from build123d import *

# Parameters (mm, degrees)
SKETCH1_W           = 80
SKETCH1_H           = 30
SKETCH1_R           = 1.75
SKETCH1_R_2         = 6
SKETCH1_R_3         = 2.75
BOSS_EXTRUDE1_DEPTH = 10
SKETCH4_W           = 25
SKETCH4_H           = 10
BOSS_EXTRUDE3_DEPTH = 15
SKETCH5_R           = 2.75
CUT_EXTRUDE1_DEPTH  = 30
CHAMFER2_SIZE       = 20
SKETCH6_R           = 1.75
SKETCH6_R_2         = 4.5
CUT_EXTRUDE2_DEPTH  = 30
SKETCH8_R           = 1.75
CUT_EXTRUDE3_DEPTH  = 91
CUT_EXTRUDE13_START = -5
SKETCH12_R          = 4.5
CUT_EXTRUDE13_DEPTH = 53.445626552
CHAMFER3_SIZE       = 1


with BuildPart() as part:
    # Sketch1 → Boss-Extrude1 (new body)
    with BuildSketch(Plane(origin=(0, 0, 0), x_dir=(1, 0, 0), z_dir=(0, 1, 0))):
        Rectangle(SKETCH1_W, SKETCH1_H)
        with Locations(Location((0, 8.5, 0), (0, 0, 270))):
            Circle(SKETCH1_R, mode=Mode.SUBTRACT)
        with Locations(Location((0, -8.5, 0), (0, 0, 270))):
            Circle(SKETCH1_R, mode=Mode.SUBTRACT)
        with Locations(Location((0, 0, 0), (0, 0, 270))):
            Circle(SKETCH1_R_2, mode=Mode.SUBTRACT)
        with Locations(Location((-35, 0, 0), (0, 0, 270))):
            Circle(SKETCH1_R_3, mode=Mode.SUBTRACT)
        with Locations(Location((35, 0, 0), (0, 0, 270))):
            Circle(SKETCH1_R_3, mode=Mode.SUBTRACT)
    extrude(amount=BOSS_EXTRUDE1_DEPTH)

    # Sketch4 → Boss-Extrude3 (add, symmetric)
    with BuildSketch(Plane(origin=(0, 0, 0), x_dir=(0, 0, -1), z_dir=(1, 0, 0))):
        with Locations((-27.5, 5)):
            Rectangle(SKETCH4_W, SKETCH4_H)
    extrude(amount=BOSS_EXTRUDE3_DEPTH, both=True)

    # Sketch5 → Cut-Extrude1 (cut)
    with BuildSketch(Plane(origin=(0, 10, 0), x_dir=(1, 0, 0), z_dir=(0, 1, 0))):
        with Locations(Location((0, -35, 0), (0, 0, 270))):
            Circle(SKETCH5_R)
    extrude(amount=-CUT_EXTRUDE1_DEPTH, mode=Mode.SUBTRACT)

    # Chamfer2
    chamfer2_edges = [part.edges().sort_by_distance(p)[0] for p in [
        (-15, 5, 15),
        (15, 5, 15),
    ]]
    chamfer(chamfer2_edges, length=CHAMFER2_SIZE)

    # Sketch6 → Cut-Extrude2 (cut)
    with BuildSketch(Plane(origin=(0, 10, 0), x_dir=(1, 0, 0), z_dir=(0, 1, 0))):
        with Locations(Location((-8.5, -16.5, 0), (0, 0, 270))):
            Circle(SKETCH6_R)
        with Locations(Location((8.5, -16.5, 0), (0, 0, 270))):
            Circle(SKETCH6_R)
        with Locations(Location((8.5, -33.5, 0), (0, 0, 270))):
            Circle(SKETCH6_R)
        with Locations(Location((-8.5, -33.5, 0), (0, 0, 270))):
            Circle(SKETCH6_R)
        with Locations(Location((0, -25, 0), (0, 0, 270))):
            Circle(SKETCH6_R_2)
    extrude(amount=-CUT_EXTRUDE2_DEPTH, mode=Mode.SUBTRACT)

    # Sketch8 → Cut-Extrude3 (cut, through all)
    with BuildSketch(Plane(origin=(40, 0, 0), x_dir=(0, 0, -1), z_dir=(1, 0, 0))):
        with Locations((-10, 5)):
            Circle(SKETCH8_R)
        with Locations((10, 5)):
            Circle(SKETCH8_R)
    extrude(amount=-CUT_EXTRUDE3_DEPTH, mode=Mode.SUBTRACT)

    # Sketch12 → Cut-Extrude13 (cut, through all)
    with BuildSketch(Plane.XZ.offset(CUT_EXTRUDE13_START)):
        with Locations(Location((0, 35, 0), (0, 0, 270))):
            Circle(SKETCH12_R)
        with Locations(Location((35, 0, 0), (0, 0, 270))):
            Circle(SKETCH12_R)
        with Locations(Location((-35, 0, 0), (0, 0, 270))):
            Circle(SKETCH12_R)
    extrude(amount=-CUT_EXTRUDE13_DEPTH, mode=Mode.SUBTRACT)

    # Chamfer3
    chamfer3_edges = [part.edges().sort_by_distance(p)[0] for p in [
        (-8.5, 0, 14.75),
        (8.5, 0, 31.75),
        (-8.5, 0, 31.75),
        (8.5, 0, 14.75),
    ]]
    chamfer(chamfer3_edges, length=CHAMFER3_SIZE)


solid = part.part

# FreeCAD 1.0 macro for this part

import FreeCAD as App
import Part
import Sketcher

V = App.Vector


def edges_at(feature, points):
    """Names of the edges that pass closest to the given points."""
    edges = feature.Shape.Edges
    near = lambda p: min(range(len(edges)), key=lambda i: edges[i].distToShape(Part.Vertex(*p))[0])
    return sorted({f"Edge{near(p) + 1}" for p in points})

doc = App.newDocument("Part")
body = doc.addObject("PartDesign::Body", "Body")

sketch1 = body.newObject("Sketcher::SketchObject", "Sketch")
sketch1.AttachmentSupport = (doc.getObject("XZ_Plane"), [""])
sketch1.MapMode = "FlatFace"
sketch1.addGeometry([
    Part.LineSegment(V(-40, -15, 0), V(-40, 15, 0)),
    Part.LineSegment(V(-40, 15, 0), V(40, 15, 0)),
    Part.LineSegment(V(40, 15, 0), V(40, -15, 0)),
    Part.LineSegment(V(40, -15, 0), V(-40, -15, 0)),
    Part.Circle(V(0, 8.5, 0), V(0, 0, 1), 1.75),
    Part.Circle(V(-35, 0, 0), V(0, 0, 1), 2.75),
    Part.Circle(V(0, 0, 0), V(0, 0, 1), 6),
    Part.Circle(V(35, 0, 0), V(0, 0, 1), 2.75),
    Part.Circle(V(0, -8.5, 0), V(0, 0, 1), 1.75),
], False)
sketch1.addConstraint([
    Sketcher.Constraint("Coincident", 0, 2, 1, 1),
    Sketcher.Constraint("Coincident", 1, 2, 2, 1),
    Sketcher.Constraint("Coincident", 2, 2, 3, 1),
    Sketcher.Constraint("Coincident", 3, 2, 0, 1),
    Sketcher.Constraint("Vertical", 0),
    Sketcher.Constraint("Horizontal", 1),
    Sketcher.Constraint("Vertical", 2),
    Sketcher.Constraint("Horizontal", 3),
    Sketcher.Constraint("Coincident", 6, 3, -1, 1),
    Sketcher.Constraint("Equal", 5, 7),
    Sketcher.Constraint("Equal", 4, 8),
    Sketcher.Constraint("Symmetric", 5, 3, 7, 3, -1, 1),
    Sketcher.Constraint("Symmetric", 4, 3, 8, 3, -1, 1),
    Sketcher.Constraint("Symmetric", 0, 2, 2, 2, -1, 1),
    Sketcher.Constraint("PointOnObject", 4, 3, -2),
    Sketcher.Constraint("PointOnObject", 5, 3, -1),
    Sketcher.Constraint("Diameter", 6, 12.0),
    Sketcher.Constraint("Diameter", 4, 3.5),
    Sketcher.Constraint("Diameter", 5, 5.5),
    Sketcher.Constraint("DistanceX", 1, 1, 1, 2, 80.0),
    Sketcher.Constraint("DistanceY", 0, 1, 0, 2, 30.0),
    Sketcher.Constraint("DistanceX", 5, 3, -1, 1, 35.0),
    Sketcher.Constraint("DistanceY", 8, 3, 4, 3, 17.0),
])
pad1 = body.newObject("PartDesign::Pad", "Pad")
pad1.Profile = sketch1
pad1.Length = 10
pad1.Reversed = True

sketch2 = body.newObject("Sketcher::SketchObject", "Sketch001")
sketch2.AttachmentSupport = (doc.getObject("YZ_Plane"), [""])
sketch2.MapMode = "FlatFace"
sketch2.addGeometry([
    Part.LineSegment(V(10, 40, 0), V(0, 40, 0)),
    Part.LineSegment(V(0, 40, 0), V(0, 15, 0)),
    Part.LineSegment(V(0, 15, 0), V(10, 15, 0)),
    Part.LineSegment(V(10, 15, 0), V(10, 40, 0)),
], False)
sketch2.addConstraint([
    Sketcher.Constraint("Coincident", 0, 2, 1, 1),
    Sketcher.Constraint("Coincident", 1, 2, 2, 1),
    Sketcher.Constraint("Coincident", 2, 2, 3, 1),
    Sketcher.Constraint("Coincident", 3, 2, 0, 1),
    Sketcher.Constraint("Horizontal", 0),
    Sketcher.Constraint("Vertical", 1),
    Sketcher.Constraint("Horizontal", 2),
    Sketcher.Constraint("Vertical", 3),
    Sketcher.Constraint("PointOnObject", 0, 2, -2),
    Sketcher.Constraint("DistanceX", 0, 2, 0, 1, 10.0),
    Sketcher.Constraint("DistanceY", 1, 2, 1, 1, 25.0),
    Sketcher.Constraint("DistanceY", -1, 1, 0, 2, 40.0),
])
pad2 = body.newObject("PartDesign::Pad", "Pad001")
pad2.Profile = sketch2
pad2.Length = 30
pad2.Midplane = True

sketch3 = body.newObject("Sketcher::SketchObject", "Sketch002")
sketch3.AttachmentSupport = (doc.getObject("XZ_Plane"), [""])
sketch3.MapMode = "FlatFace"
sketch3.AttachmentOffset = App.Placement(V(0, 0, -10), App.Rotation())
sketch3.addGeometry(Part.Circle(V(0, 35, 0), V(0, 0, 1), 2.75), False)
sketch3.addConstraint([
    Sketcher.Constraint("PointOnObject", 0, 3, -2),
    Sketcher.Constraint("Diameter", 0, 5.5),
    Sketcher.Constraint("DistanceY", -1, 1, 0, 3, 35.0),
])
pocket1 = body.newObject("PartDesign::Pocket", "Pocket")
pocket1.Profile = sketch3
pocket1.Length = 30
pocket1.Reversed = True
doc.recompute()

chamfer = body.newObject("PartDesign::Chamfer", "Chamfer")
chamfer.Base = (pocket1, edges_at(pocket1, [(-15, 5, 15), (15, 5, 15)]))
chamfer.Size = 20

sketch4 = body.newObject("Sketcher::SketchObject", "Sketch003")
sketch4.AttachmentSupport = (doc.getObject("XZ_Plane"), [""])
sketch4.MapMode = "FlatFace"
sketch4.AttachmentOffset = App.Placement(V(0, 0, -10), App.Rotation())
sketch4.addGeometry([
    Part.Circle(V(-8.5, 16.5, 0), V(0, 0, 1), 1.75),
    Part.Circle(V(8.5, 16.5, 0), V(0, 0, 1), 1.75),
    Part.Circle(V(8.5, 33.5, 0), V(0, 0, 1), 1.75),
    Part.Circle(V(-8.5, 33.5, 0), V(0, 0, 1), 1.75),
    Part.Circle(V(0, 25, 0), V(0, 0, 1), 4.5),
], False)
sketch4.addConstraint([
    Sketcher.Constraint("Equal", 0, 1),
    Sketcher.Constraint("Equal", 1, 2),
    Sketcher.Constraint("Equal", 2, 3),
    Sketcher.Constraint("Symmetric", 0, 3, 1, 3, -2),
    Sketcher.Constraint("Symmetric", 2, 3, 3, 3, -2),
    Sketcher.Constraint("PointOnObject", 4, 3, -2),
    Sketcher.Constraint("Vertical", 1, 3, 2, 3),
    Sketcher.Constraint("Diameter", 4, 9.0),
    Sketcher.Constraint("Diameter", 0, 3.5),
    Sketcher.Constraint("DistanceY", -1, 1, 4, 3, 25.0),
    Sketcher.Constraint("DistanceX", 0, 3, 1, 3, 17.0),
    Sketcher.Constraint("DistanceY", 1, 3, 2, 3, 17.0),
    Sketcher.Constraint("DistanceY", -1, 1, 0, 3, 16.5),
])
pocket2 = body.newObject("PartDesign::Pocket", "Pocket001")
pocket2.Profile = sketch4
pocket2.Length = 30
pocket2.Reversed = True

sketch5 = body.newObject("Sketcher::SketchObject", "Sketch004")
sketch5.AttachmentSupport = (doc.getObject("YZ_Plane"), [""])
sketch5.MapMode = "FlatFace"
sketch5.AttachmentOffset = App.Placement(V(0, 0, 40), App.Rotation())
sketch5.addGeometry([
    Part.Circle(V(5, 10, 0), V(0, 0, 1), 1.75),
    Part.Circle(V(5, -10, 0), V(0, 0, 1), 1.75),
], False)
sketch5.addConstraint([
    Sketcher.Constraint("Equal", 0, 1),
    Sketcher.Constraint("Symmetric", 0, 3, 1, 3, -1),
    Sketcher.Constraint("Diameter", 0, 3.5),
    Sketcher.Constraint("DistanceX", -1, 1, 0, 3, 5.0),
    Sketcher.Constraint("DistanceY", -1, 1, 0, 3, 10.0),
])
pocket3 = body.newObject("PartDesign::Pocket", "Pocket002")
pocket3.Profile = sketch5
pocket3.Type = "ThroughAll"

sketch6 = body.newObject("Sketcher::SketchObject", "Sketch005")
sketch6.AttachmentSupport = (doc.getObject("XZ_Plane"), [""])
sketch6.MapMode = "FlatFace"
sketch6.AttachmentOffset = App.Placement(V(0, 0, -5), App.Rotation())
sketch6.addGeometry([
    Part.Circle(V(0, 35, 0), V(0, 0, 1), 4.5),
    Part.Circle(V(35, 0, 0), V(0, 0, 1), 4.5),
    Part.Circle(V(-35, 0, 0), V(0, 0, 1), 4.5),
], False)
sketch6.addConstraint([
    Sketcher.Constraint("Equal", 0, 1),
    Sketcher.Constraint("Equal", 1, 2),
    Sketcher.Constraint("Symmetric", 1, 3, 2, 3, -1, 1),
    Sketcher.Constraint("PointOnObject", 0, 3, -2),
    Sketcher.Constraint("PointOnObject", 1, 3, -1),
    Sketcher.Constraint("Diameter", 0, 9.0),
    Sketcher.Constraint("DistanceY", -1, 1, 0, 3, 35.0),
    Sketcher.Constraint("DistanceX", -1, 1, 1, 3, 35.0),
])
pocket4 = body.newObject("PartDesign::Pocket", "Pocket003")
pocket4.Profile = sketch6
pocket4.Type = "ThroughAll"
doc.recompute()

chamfer2 = body.newObject("PartDesign::Chamfer", "Chamfer001")
chamfer2.Base = (pocket4, edges_at(pocket4, [
    (-8.5, 0, 14.75),
    (8.5, 0, 31.75),
    (-8.5, 0, 31.75),
    (8.5, 0, 14.75),
]))
chamfer2.Size = 1

doc.recompute()
